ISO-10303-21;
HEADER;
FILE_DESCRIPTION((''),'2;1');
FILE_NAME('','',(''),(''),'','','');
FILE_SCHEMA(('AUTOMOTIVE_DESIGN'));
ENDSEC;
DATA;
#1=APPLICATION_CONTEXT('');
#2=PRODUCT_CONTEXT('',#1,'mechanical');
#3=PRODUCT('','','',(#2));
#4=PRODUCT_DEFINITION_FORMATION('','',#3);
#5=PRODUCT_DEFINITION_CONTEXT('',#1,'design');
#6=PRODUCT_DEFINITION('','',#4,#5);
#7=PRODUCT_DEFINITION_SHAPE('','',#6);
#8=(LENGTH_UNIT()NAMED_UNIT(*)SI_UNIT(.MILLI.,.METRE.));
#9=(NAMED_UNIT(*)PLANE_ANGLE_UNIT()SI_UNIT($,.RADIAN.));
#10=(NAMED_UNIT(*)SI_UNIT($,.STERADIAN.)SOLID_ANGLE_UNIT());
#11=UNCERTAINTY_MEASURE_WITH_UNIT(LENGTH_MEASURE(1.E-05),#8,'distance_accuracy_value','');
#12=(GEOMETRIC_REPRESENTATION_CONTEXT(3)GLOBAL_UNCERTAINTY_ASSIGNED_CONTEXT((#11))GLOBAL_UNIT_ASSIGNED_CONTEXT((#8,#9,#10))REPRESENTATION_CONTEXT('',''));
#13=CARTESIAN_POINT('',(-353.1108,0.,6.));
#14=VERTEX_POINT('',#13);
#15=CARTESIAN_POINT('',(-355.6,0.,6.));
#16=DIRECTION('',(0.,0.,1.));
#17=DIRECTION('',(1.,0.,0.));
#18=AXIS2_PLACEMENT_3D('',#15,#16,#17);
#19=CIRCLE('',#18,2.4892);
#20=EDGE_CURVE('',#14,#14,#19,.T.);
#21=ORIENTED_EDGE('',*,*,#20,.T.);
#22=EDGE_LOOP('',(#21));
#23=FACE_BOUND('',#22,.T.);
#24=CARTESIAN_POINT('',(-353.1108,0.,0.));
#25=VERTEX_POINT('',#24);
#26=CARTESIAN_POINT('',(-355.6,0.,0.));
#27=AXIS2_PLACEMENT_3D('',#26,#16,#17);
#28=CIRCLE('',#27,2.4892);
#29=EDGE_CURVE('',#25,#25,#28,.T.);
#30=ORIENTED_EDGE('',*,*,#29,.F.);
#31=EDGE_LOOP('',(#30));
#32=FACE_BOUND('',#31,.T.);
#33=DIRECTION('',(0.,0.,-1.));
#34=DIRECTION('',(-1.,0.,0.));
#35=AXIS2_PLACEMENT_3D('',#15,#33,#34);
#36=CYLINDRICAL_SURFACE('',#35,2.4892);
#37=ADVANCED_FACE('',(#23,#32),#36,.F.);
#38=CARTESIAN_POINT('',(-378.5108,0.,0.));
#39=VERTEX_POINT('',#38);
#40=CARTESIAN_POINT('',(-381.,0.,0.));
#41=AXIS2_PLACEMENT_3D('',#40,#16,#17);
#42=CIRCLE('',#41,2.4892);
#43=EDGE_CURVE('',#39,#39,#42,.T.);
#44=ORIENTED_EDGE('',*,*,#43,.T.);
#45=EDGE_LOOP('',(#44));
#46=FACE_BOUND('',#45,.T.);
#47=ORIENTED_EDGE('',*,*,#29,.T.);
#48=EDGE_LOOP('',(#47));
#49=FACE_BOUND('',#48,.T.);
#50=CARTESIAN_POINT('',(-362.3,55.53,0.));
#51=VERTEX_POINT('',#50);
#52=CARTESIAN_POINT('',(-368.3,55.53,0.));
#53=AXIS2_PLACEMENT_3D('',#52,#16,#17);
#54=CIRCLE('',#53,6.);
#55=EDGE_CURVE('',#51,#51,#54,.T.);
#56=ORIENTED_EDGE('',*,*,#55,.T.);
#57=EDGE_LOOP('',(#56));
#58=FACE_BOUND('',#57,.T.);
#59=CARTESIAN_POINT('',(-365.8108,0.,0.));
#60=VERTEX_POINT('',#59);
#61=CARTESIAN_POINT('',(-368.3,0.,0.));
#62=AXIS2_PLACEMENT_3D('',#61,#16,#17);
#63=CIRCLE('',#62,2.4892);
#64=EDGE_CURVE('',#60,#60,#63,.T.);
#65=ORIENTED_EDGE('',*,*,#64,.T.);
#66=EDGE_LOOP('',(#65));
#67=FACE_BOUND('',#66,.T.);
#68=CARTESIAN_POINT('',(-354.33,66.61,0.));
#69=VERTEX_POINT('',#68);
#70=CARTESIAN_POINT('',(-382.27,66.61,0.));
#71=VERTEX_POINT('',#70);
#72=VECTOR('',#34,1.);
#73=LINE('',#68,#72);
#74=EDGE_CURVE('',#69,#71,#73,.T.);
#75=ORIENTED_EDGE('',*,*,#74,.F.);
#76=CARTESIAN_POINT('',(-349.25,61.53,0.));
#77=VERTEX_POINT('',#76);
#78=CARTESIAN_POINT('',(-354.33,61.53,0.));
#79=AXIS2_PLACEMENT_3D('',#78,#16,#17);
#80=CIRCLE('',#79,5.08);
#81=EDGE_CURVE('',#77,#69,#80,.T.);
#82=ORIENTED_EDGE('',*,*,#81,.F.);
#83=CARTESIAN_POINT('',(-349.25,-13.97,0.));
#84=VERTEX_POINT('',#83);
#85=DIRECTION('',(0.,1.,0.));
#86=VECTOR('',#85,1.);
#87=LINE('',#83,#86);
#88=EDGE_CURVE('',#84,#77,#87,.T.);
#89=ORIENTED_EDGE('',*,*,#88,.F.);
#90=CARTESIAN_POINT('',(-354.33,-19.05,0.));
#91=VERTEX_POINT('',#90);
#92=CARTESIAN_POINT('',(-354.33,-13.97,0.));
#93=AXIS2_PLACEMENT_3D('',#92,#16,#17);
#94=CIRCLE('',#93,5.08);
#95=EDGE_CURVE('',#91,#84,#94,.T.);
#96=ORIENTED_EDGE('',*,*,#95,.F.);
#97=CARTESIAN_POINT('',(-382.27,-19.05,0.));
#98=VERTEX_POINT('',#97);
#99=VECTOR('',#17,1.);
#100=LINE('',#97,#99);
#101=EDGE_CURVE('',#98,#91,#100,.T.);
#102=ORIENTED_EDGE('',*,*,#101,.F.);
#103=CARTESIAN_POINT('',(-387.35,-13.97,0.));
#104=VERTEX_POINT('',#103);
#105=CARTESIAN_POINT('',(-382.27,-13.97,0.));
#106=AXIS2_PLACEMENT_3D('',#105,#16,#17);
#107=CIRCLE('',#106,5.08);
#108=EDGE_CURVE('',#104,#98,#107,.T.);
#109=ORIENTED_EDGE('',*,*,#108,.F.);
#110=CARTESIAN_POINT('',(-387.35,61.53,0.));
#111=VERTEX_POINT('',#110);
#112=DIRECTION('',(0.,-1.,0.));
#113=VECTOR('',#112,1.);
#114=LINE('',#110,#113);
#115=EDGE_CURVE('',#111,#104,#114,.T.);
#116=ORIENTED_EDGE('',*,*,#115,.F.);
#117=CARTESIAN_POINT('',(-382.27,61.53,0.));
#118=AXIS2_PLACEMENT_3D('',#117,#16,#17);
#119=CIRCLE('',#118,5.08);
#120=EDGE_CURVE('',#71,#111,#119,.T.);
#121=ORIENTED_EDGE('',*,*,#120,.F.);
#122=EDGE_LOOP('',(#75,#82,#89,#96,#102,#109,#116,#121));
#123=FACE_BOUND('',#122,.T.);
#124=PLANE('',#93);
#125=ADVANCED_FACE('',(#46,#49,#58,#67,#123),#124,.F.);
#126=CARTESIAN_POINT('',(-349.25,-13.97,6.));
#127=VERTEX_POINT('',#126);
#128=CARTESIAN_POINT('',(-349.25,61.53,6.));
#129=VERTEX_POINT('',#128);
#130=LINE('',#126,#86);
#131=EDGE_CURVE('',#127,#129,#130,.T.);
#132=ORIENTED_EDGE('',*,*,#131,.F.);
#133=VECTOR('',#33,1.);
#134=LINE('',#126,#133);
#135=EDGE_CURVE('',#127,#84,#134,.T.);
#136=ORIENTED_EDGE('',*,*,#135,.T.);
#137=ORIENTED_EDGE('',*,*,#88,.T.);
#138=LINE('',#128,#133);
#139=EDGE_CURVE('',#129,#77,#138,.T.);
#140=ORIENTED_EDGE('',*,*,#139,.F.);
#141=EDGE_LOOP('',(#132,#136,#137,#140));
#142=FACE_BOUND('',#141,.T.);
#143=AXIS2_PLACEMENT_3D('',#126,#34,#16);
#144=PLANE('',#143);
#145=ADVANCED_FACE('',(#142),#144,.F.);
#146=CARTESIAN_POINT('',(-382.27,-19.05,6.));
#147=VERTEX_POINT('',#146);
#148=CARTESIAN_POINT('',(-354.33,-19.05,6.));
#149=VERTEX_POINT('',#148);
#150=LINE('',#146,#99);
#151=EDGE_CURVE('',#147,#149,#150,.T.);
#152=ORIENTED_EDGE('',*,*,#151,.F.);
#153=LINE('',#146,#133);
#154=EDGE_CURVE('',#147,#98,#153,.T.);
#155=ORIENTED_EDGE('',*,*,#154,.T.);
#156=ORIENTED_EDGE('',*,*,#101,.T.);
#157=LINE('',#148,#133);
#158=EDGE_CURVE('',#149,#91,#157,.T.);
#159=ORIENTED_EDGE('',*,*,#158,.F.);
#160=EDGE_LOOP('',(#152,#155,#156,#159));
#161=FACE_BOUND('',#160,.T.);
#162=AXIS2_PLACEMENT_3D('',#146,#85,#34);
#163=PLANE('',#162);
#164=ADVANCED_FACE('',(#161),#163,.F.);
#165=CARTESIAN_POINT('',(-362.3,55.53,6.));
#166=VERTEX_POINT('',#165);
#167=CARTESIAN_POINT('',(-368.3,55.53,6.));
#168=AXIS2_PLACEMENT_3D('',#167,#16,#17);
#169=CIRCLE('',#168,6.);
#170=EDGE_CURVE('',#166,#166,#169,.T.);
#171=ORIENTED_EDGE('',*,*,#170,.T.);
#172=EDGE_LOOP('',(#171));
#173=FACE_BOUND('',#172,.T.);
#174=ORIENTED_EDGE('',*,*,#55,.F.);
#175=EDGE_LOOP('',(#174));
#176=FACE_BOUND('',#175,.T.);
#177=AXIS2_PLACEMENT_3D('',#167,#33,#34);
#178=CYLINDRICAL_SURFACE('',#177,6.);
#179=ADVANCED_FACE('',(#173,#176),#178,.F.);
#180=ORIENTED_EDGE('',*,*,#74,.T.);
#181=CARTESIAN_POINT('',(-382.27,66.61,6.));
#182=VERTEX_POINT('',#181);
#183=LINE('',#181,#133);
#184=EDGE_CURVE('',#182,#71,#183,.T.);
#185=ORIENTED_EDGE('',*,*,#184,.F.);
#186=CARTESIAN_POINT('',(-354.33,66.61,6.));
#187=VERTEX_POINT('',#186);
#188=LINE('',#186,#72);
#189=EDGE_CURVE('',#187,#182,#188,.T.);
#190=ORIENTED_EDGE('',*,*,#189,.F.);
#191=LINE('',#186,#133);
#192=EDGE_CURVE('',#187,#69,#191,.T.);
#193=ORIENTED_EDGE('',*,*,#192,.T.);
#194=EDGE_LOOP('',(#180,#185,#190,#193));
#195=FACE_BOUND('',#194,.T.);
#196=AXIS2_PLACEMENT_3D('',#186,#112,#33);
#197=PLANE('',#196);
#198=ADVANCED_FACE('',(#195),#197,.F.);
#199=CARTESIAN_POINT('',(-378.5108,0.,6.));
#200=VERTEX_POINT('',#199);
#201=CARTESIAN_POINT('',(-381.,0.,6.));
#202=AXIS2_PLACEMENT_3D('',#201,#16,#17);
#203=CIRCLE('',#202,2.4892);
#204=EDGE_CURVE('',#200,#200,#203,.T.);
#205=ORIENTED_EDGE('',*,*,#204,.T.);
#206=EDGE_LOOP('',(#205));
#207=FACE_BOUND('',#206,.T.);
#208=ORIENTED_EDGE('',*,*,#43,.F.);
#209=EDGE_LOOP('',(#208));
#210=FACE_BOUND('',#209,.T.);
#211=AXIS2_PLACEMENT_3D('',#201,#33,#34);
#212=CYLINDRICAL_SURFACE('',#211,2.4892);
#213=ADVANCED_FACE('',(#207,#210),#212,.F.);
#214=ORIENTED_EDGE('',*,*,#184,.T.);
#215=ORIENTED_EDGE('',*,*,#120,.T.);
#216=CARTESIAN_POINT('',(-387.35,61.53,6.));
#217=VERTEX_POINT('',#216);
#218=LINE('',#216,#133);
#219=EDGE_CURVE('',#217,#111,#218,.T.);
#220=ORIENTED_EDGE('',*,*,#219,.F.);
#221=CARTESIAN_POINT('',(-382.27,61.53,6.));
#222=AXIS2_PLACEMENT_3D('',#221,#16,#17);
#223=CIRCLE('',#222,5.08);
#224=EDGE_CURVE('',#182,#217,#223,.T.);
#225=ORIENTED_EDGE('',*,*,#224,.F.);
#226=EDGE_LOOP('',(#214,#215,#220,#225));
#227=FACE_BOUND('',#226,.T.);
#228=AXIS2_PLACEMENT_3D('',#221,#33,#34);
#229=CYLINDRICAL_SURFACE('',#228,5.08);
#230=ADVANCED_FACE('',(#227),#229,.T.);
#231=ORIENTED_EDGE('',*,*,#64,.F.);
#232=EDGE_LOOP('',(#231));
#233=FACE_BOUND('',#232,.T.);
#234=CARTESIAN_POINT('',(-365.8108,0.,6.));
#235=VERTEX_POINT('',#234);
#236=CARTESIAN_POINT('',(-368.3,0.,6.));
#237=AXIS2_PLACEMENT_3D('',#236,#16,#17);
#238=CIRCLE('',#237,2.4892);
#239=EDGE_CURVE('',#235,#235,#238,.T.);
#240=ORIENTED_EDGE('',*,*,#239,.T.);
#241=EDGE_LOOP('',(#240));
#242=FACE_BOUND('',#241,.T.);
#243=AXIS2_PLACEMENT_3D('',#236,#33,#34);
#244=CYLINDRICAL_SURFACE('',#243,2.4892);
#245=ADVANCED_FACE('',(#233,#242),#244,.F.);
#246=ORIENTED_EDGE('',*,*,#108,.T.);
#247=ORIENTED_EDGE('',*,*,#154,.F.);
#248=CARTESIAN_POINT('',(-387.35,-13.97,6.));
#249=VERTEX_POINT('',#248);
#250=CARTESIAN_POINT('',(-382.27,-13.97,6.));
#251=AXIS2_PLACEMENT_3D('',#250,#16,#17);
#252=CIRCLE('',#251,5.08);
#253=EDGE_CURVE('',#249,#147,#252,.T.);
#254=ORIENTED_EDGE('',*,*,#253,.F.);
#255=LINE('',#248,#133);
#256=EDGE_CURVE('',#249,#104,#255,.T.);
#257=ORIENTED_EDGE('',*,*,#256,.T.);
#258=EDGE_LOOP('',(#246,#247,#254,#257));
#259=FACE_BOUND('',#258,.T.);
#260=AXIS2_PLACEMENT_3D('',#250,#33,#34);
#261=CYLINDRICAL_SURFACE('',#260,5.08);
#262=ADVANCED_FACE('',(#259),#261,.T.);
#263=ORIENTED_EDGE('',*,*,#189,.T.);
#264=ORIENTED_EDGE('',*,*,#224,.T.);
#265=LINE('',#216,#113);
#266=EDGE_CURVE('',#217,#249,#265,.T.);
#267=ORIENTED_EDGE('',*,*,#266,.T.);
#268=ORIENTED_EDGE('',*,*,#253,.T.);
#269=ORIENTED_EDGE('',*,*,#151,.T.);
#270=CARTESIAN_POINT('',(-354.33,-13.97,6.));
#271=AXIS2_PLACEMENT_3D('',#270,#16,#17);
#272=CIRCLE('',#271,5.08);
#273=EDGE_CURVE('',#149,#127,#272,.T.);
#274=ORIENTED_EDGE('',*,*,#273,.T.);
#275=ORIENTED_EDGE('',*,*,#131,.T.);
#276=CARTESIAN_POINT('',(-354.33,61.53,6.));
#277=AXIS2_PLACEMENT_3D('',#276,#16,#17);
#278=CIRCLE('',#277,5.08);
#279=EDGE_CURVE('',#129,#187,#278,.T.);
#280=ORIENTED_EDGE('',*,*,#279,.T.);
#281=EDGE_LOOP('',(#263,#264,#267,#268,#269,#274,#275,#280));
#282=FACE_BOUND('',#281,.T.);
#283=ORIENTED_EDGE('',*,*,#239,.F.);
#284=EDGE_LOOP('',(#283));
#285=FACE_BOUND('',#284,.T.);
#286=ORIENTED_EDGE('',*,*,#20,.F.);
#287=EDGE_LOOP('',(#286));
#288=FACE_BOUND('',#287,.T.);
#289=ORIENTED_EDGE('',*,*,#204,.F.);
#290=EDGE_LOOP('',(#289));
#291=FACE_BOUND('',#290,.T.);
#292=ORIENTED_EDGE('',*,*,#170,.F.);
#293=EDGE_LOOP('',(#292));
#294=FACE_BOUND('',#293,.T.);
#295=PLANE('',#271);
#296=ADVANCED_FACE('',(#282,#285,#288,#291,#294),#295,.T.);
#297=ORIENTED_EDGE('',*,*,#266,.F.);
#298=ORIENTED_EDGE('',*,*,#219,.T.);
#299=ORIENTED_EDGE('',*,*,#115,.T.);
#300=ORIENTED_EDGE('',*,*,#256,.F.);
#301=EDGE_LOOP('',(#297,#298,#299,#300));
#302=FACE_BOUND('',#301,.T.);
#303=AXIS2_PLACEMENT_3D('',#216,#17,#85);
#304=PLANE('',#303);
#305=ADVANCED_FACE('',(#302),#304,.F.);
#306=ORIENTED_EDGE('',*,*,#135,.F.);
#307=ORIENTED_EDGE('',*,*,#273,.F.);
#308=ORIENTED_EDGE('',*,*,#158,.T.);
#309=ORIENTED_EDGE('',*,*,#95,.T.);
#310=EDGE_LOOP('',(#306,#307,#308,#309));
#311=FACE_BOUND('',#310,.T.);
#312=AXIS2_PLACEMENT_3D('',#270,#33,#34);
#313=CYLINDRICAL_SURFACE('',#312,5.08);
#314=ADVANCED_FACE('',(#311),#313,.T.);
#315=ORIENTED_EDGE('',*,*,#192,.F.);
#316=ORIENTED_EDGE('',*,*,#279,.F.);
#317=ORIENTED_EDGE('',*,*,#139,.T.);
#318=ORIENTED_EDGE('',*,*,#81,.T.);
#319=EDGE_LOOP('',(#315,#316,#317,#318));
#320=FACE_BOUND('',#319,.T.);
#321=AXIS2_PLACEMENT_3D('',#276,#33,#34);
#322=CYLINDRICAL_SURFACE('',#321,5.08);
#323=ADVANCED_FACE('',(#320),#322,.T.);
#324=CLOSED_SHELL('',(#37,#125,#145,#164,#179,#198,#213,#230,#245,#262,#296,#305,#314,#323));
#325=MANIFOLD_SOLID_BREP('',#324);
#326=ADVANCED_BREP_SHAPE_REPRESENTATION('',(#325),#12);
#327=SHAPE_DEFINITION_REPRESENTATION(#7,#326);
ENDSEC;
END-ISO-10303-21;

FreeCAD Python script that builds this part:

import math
import FreeCAD as App
import Part
import Sketcher
Q = App.Units.Quantity

doc = App.newDocument("Part")
params = doc.addObject("Spreadsheet::Sheet", "Params")
for row, (alias, value) in enumerate([
    ("sketch1_diameter", "12 mm"),
    ("sketch1_radius", "5.08 mm"),
    ("sketch1_height", "75.5 mm"),
    ("sketch1_width", "27.94 mm"),
    ("pad1_length", "6 mm"),
], start=1):
    params.set(f"A{row}", alias)
    params.set(f"B{row}", "=" + value)
    params.setAlias(f"B{row}", alias)

body = doc.addObject("PartDesign::Body", "Body")

sketch1 = doc.addObject("Sketcher::SketchObject", "Sketch")
body.addObject(sketch1)
sketch1.AttachmentSupport = (doc.XY_Plane, [""])
sketch1.MapMode = "FlatFace"
sketch1.addGeometry([
    Part.LineSegment(App.Vector(-382.3, -19.1, 0), App.Vector(-354.3, -19.1, 0)),
    Part.ArcOfCircle(Part.Circle(App.Vector(-354.3, -14, 0), App.Vector(0, 0, 1), 5.1), math.radians(-90), math.radians(0)),
    Part.LineSegment(App.Vector(-349.2, -14, 0), App.Vector(-349.2, 61.5, 0)),
    Part.ArcOfCircle(Part.Circle(App.Vector(-354.3, 61.5, 0), App.Vector(0, 0, 1), 5.1), math.radians(0), math.radians(90)),
    Part.LineSegment(App.Vector(-354.3, 66.6, 0), App.Vector(-382.3, 66.6, 0)),
    Part.ArcOfCircle(Part.Circle(App.Vector(-382.3, 61.5, 0), App.Vector(0, 0, 1), 5.1), math.radians(90), math.radians(180)),
    Part.LineSegment(App.Vector(-387.4, 61.5, 0), App.Vector(-387.4, -14, 0)),
    Part.ArcOfCircle(Part.Circle(App.Vector(-382.3, -14, 0), App.Vector(0, 0, 1), 5.1), math.radians(-180), math.radians(-90)),
    Part.Circle(App.Vector(-381, 0, 0), App.Vector(0, 0, 1), 2.5),
    Part.Circle(App.Vector(-368.3, 0, 0), App.Vector(0, 0, 1), 2.5),
    Part.Circle(App.Vector(-355.6, 0, 0), App.Vector(0, 0, 1), 2.5),
    Part.Circle(App.Vector(-368.3, 55.5, 0), App.Vector(0, 0, 1), 6),
], False)
sketch1.addConstraint([
    Sketcher.Constraint("Tangent", 0, 2, 1, 1),
    Sketcher.Constraint("Tangent", 1, 2, 2, 1),
    Sketcher.Constraint("Tangent", 2, 2, 3, 1),
    Sketcher.Constraint("Tangent", 3, 2, 4, 1),
    Sketcher.Constraint("Tangent", 4, 2, 5, 1),
    Sketcher.Constraint("Tangent", 5, 2, 6, 1),
    Sketcher.Constraint("Tangent", 6, 2, 7, 1),
    Sketcher.Constraint("Tangent", 7, 2, 0, 1),
    Sketcher.Constraint("Horizontal", 0),
    Sketcher.Constraint("Vertical", 2),
    Sketcher.Constraint("Horizontal", 4),
    Sketcher.Constraint("Vertical", 6),
    Sketcher.Constraint("Equal", 1, 3),
    Sketcher.Constraint("Equal", 3, 5),
    Sketcher.Constraint("Equal", 5, 7),
    Sketcher.Constraint("Equal", 8, 9),
    Sketcher.Constraint("Equal", 9, 10),
    Sketcher.Constraint("PointOnObject", 8, 3, -1),
    Sketcher.Constraint("PointOnObject", 9, 3, -1),
    Sketcher.Constraint("PointOnObject", 10, 3, -1),
    Sketcher.Constraint("Vertical", 9, 3, 11, 3),
    Sketcher.Constraint("Diameter", 11, Q("12 mm")),
    Sketcher.Constraint("Radius", 1, Q("5.08 mm")),
    Sketcher.Constraint("DistanceY", 2, 1, 2, 2, Q("75.5 mm")),
    Sketcher.Constraint("DistanceX", 8, 3, -1, 1, Q("381 mm")),
    Sketcher.Constraint("DistanceY", 11, 3, 5, 3, Q("6 mm")),
    Sketcher.Constraint("Diameter", 8, Q("4.9784 mm")),
    Sketcher.Constraint("DistanceX", 0, 1, 0, 2, Q("27.94 mm")),
    Sketcher.Constraint("DistanceX", 9, 3, -1, 1, Q("368.3 mm")),
    Sketcher.Constraint("DistanceX", 10, 3, -1, 1, Q("355.6 mm")),
    Sketcher.Constraint("DistanceX", 1, 3, -1, 1, Q("354.33 mm")),
    Sketcher.Constraint("DistanceY", 1, 3, -1, 1, Q("13.97 mm")),
])
sketch1.setExpression("Constraints[21]", "Params.sketch1_diameter")
sketch1.setExpression("Constraints[22]", "Params.sketch1_radius")
sketch1.setExpression("Constraints[23]", "Params.sketch1_height")
sketch1.setExpression("Constraints[27]", "Params.sketch1_width")
pad1 = doc.addObject("PartDesign::Pad", "Pad")
body.addObject(pad1)
pad1.Profile = sketch1
pad1.setExpression("Length", "Params.pad1_length")

doc.recompute()
